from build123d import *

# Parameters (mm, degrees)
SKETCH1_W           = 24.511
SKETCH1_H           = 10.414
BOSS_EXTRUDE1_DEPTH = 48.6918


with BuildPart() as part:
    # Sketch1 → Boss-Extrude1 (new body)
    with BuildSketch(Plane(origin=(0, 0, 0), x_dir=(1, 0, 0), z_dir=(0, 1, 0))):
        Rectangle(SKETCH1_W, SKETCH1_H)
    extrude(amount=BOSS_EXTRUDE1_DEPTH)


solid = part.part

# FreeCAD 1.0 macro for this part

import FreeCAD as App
import Part
import Sketcher
from FreeCAD import Vector
Q = App.Units.Quantity

doc = App.newDocument("Part")
params = doc.addObject("Spreadsheet::Sheet", "Params")
for row, (alias, value) in enumerate([
    ("sketch1_height", "0.41 in"),
    ("sketch1_width", "0.965 in"),
    ("pad1_length", "1.917 in"),
], start=1):
    params.set(f"A{row}", alias)
    params.set(f"B{row}", "=" + value)
    params.setAlias(f"B{row}", alias)

body = doc.addObject("PartDesign::Body", "Body")

# Sketch on XZ plane
sketch1 = body.newObject("Sketcher::SketchObject", "Sketch")
sketch1.AttachmentSupport = (doc.getObject("XZ_Plane"), [""])
sketch1.MapMode = "FlatFace"
sketch1.addGeometry([
    Part.LineSegment(Vector(-12.2555, -5.207, 0), Vector(-12.2555, 5.207, 0)),
    Part.LineSegment(Vector(-12.2555, 5.207, 0), Vector(12.2555, 5.207, 0)),
    Part.LineSegment(Vector(12.2555, 5.207, 0), Vector(12.2555, -5.207, 0)),
    Part.LineSegment(Vector(12.2555, -5.207, 0), Vector(-12.2555, -5.207, 0)),
], False)
sketch1.addConstraint([
    Sketcher.Constraint("Coincident", 0, 2, 1, 1),
    Sketcher.Constraint("Coincident", 1, 2, 2, 1),
    Sketcher.Constraint("Coincident", 2, 2, 3, 1),
    Sketcher.Constraint("Coincident", 3, 2, 0, 1),
    Sketcher.Constraint("Vertical", 0),
    Sketcher.Constraint("Horizontal", 1),
    Sketcher.Constraint("Vertical", 2),
    Sketcher.Constraint("Horizontal", 3),
    Sketcher.Constraint("Symmetric", 0, 2, 2, 2, -1, 1),
    Sketcher.Constraint("DistanceY", 0, 1, 0, 2, Q("0.41 in")),
    Sketcher.Constraint("DistanceX", 1, 1, 1, 2, Q("0.965 in")),
])
sketch1.setExpression("Constraints[9]", "Params.sketch1_height")
sketch1.setExpression("Constraints[10]", "Params.sketch1_width")
pad1 = body.newObject("PartDesign::Pad", "Pad")
pad1.Profile = sketch1
pad1.setExpression("Length", "Params.pad1_length")
pad1.Reversed = True

doc.recompute()
